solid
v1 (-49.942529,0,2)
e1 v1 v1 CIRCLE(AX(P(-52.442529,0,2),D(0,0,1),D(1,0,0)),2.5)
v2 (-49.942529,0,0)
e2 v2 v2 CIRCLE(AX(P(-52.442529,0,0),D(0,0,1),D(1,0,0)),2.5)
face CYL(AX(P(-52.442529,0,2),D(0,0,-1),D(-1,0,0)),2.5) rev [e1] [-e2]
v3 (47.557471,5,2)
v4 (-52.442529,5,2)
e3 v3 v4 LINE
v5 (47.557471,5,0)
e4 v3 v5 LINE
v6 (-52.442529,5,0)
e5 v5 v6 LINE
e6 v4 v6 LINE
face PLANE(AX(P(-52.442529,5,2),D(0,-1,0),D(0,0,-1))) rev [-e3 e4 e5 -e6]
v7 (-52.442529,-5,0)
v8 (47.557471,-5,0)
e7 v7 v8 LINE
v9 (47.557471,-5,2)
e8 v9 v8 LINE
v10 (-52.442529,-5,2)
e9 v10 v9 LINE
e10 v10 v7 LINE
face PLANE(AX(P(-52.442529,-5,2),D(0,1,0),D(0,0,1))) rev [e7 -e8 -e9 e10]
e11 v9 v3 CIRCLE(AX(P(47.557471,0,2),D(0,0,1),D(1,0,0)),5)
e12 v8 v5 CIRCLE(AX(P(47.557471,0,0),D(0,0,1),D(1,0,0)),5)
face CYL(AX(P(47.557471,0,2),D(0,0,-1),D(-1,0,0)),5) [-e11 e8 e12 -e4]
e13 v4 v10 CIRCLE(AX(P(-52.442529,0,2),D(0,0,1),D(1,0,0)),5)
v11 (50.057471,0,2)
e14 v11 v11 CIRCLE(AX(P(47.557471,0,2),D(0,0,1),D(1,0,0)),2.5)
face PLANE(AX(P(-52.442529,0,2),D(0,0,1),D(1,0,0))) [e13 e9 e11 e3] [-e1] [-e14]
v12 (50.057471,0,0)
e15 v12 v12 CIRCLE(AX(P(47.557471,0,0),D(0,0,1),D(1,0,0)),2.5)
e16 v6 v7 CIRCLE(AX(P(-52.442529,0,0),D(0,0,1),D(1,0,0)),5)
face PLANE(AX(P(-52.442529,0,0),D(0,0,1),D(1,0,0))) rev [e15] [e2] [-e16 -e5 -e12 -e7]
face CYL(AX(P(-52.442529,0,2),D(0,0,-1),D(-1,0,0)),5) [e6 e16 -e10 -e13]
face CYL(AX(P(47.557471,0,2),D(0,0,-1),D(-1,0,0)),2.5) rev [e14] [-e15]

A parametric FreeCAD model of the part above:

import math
import FreeCAD as App
import Part
import Sketcher

V = App.Vector

doc = App.newDocument("Part")
body = doc.addObject("PartDesign::Body", "Body")

sketch1 = body.newObject("Sketcher::SketchObject", "Sketch")
sketch1.AttachmentSupport = (doc.getObject("XY_Plane"), [""])
sketch1.MapMode = "FlatFace"
sketch1.addGeometry(Part.LineSegment(V(47.6, 5, 0), V(-52.4, 5, 0)), False)
sketch1.addGeometry(Part.ArcOfCircle(Part.Circle(V(-52.4, 0, 0), V(0, 0, 1), 5), math.radians(90), math.radians(270)), False)
sketch1.addGeometry(Part.LineSegment(V(-52.4, -5, 0), V(47.6, -5, 0)), False)
sketch1.addGeometry(Part.ArcOfCircle(Part.Circle(V(47.6, 0, 0), V(0, 0, 1), 5), math.radians(-90), math.radians(90)), False)
sketch1.addGeometry(Part.Circle(V(47.6, 0, 0), V(0, 0, 1), 2.5), False)
sketch1.addGeometry(Part.Circle(V(-52.4, 0, 0), V(0, 0, 1), 2.5), False)
sketch1.addConstraint(Sketcher.Constraint("Tangent", 0, 2, 1, 1))
sketch1.addConstraint(Sketcher.Constraint("Tangent", 1, 2, 2, 1))
sketch1.addConstraint(Sketcher.Constraint("Tangent", 2, 2, 3, 1))
sketch1.addConstraint(Sketcher.Constraint("Tangent", 3, 2, 0, 1))
sketch1.addConstraint(Sketcher.Constraint("Horizontal", 0))
sketch1.addConstraint(Sketcher.Constraint("Horizontal", 2))
sketch1.addConstraint(Sketcher.Constraint("Coincident", 4, 3, 3, 3))
sketch1.addConstraint(Sketcher.Constraint("Coincident", 5, 3, 1, 3))
sketch1.addConstraint(Sketcher.Constraint("Equal", 4, 5))
sketch1.addConstraint(Sketcher.Constraint("PointOnObject", 1, 3, -1))
sketch1.addConstraint(Sketcher.Constraint("Diameter", 4, 5.0))
sketch1.addConstraint(Sketcher.Constraint("Radius", 1, 5.0))
sketch1.addConstraint(Sketcher.Constraint("DistanceX", 0, 2, 0, 1, 100.0))
sketch1.addConstraint(Sketcher.Constraint("DistanceX", 1, 3, -1, 1, 52.442529))
pad1 = body.newObject("PartDesign::Pad", "Pad")
pad1.Profile = sketch1
pad1.Length = 2

doc.recompute()
